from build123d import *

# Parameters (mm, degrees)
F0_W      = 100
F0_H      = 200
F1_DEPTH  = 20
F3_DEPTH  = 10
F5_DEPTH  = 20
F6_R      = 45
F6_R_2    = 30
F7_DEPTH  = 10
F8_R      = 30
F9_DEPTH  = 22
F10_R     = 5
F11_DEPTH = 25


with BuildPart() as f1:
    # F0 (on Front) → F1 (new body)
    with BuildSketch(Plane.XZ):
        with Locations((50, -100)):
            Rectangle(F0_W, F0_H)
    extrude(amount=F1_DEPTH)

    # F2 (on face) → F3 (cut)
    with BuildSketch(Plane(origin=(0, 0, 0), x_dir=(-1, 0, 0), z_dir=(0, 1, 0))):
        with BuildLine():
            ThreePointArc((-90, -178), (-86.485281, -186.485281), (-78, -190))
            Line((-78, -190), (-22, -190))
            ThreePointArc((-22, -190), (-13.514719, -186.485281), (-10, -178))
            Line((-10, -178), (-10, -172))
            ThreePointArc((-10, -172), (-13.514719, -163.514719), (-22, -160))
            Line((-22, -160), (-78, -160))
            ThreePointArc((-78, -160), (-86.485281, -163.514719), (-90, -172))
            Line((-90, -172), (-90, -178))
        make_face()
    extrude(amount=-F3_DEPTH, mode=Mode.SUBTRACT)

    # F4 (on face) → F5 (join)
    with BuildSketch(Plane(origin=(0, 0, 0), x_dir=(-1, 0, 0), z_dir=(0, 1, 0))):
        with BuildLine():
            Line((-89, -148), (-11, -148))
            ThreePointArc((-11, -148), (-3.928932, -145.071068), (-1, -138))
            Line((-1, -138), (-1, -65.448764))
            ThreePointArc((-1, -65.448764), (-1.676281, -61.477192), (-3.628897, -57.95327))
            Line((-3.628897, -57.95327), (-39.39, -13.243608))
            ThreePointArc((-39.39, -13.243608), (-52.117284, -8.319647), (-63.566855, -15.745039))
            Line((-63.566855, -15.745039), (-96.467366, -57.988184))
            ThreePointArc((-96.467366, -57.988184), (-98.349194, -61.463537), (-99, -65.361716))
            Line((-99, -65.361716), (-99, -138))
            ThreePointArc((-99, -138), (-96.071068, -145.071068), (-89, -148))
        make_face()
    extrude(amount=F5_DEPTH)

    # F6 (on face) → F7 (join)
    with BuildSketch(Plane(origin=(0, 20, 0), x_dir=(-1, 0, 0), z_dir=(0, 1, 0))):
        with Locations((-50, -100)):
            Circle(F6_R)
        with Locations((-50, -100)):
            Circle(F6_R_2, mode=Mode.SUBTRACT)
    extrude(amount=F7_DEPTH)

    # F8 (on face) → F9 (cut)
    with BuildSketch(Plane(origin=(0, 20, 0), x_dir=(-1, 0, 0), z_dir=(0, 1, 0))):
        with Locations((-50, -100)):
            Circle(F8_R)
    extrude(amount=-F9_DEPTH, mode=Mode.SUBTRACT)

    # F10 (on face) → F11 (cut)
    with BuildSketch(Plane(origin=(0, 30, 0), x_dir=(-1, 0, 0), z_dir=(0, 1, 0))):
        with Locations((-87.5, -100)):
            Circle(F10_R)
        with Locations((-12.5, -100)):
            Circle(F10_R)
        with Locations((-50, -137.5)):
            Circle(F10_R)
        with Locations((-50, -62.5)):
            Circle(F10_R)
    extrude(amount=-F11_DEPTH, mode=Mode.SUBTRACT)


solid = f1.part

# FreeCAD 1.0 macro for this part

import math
import FreeCAD as App
import Part
import Sketcher
Q = App.Units.Quantity

doc = App.newDocument("Part")
params = doc.addObject("Spreadsheet::Sheet", "Params")
for row, (alias, value) in enumerate([
    ("sketch1_width", "100 mm"),
    ("sketch1_height", "200 mm"),
    ("pad1_length", "20 mm"),
    ("sketch2_radius", "12.000001 mm"),
    ("sketch2_width", "56 mm"),
    ("sketch2_height", "6 mm"),
    ("pocket1_length", "10 mm"),
    ("sketch3_radius", "9.999999 mm"),
    ("sketch3_radius2", "15 mm"),
    ("sketch3_width", "78 mm"),
    ("pad2_length", "20 mm"),
    ("sketch4_diameter", "90 mm"),
    ("sketch4_diameter2", "60 mm"),
    ("pad3_length", "10 mm"),
    ("sketch5_diameter", "60 mm"),
    ("pocket2_length", "22 mm"),
    ("sketch6_diameter", "10 mm"),
    ("pocket3_length", "25 mm"),
], start=1):
    params.set(f"A{row}", alias)
    params.set(f"B{row}", "=" + value)
    params.setAlias(f"B{row}", alias)

body = doc.addObject("PartDesign::Body", "Body")

sketch1 = doc.addObject("Sketcher::SketchObject", "Sketch")
body.addObject(sketch1)
sketch1.AttachmentSupport = (doc.XZ_Plane, [""])
sketch1.MapMode = "FlatFace"
sketch1.addGeometry([
    Part.LineSegment(App.Vector(0, 0, 0), App.Vector(0, -200, 0)),
    Part.LineSegment(App.Vector(0, -200, 0), App.Vector(100, -200, 0)),
    Part.LineSegment(App.Vector(100, -200, 0), App.Vector(100, 0, 0)),
    Part.LineSegment(App.Vector(100, 0, 0), App.Vector(0, 0, 0)),
], False)
sketch1.addConstraint([
    Sketcher.Constraint("Coincident", 0, 2, 1, 1),
    Sketcher.Constraint("Coincident", 1, 2, 2, 1),
    Sketcher.Constraint("Coincident", 2, 2, 3, 1),
    Sketcher.Constraint("Coincident", 3, 2, 0, 1),
    Sketcher.Constraint("Vertical", 0),
    Sketcher.Constraint("Horizontal", 1),
    Sketcher.Constraint("Vertical", 2),
    Sketcher.Constraint("Horizontal", 3),
    Sketcher.Constraint("Coincident", 3, 2, -1, 1),
    Sketcher.Constraint("DistanceX", 1, 1, 1, 2, Q("100 mm")),
    Sketcher.Constraint("DistanceY", 0, 2, 0, 1, Q("200 mm")),
])
sketch1.setExpression("Constraints[9]", "Params.sketch1_width")
sketch1.setExpression("Constraints[10]", "Params.sketch1_height")
pad1 = doc.addObject("PartDesign::Pad", "Pad")
body.addObject(pad1)
pad1.Profile = sketch1
pad1.setExpression("Length", "Params.pad1_length")

sketch2 = doc.addObject("Sketcher::SketchObject", "Sketch001")
body.addObject(sketch2)
sketch2.AttachmentSupport = (doc.XZ_Plane, [""])
sketch2.MapMode = "FlatFace"
sketch2.addGeometry([
    Part.ArcOfCircle(Part.Circle(App.Vector(77.999999, -177.999999, 0), App.Vector(0, 0, 1), 12.000001), math.radians(-89.999994), math.radians(-0.000006)),
    Part.LineSegment(App.Vector(78, -190, 0), App.Vector(22, -190, 0)),
    Part.ArcOfCircle(Part.Circle(App.Vector(22.000001, -177.999999, 0), App.Vector(0, 0, 1), 12.000001), math.radians(-179.999994), math.radians(-90.000006)),
    Part.LineSegment(App.Vector(10, -178, 0), App.Vector(10, -172, 0)),
    Part.ArcOfCircle(Part.Circle(App.Vector(22.000001, -172.000001, 0), App.Vector(0, 0, 1), 12.000001), math.radians(90.000006), math.radians(179.999994)),
    Part.LineSegment(App.Vector(22, -160, 0), App.Vector(78, -160, 0)),
    Part.ArcOfCircle(Part.Circle(App.Vector(77.999999, -172.000001, 0), App.Vector(0, 0, 1), 12.000001), math.radians(0.000006), math.radians(89.999994)),
    Part.LineSegment(App.Vector(90, -172, 0), App.Vector(90, -178, 0)),
], False)
sketch2.addConstraint([
    Sketcher.Constraint("Tangent", 0, 1, 1, 1),
    Sketcher.Constraint("Tangent", 1, 2, 2, 2),
    Sketcher.Constraint("Tangent", 2, 1, 3, 1),
    Sketcher.Constraint("Tangent", 3, 2, 4, 2),
    Sketcher.Constraint("Tangent", 4, 1, 5, 1),
    Sketcher.Constraint("Tangent", 5, 2, 6, 2),
    Sketcher.Constraint("Tangent", 6, 1, 7, 1),
    Sketcher.Constraint("Tangent", 7, 2, 0, 2),
    Sketcher.Constraint("Horizontal", 1),
    Sketcher.Constraint("Vertical", 3),
    Sketcher.Constraint("Horizontal", 5),
    Sketcher.Constraint("Vertical", 7),
    Sketcher.Constraint("Equal", 0, 2),
    Sketcher.Constraint("Equal", 2, 4),
    Sketcher.Constraint("Equal", 4, 6),
    Sketcher.Constraint("Radius", 0, Q("12.000001 mm")),
    Sketcher.Constraint("DistanceX", 1, 2, 1, 1, Q("56 mm")),
    Sketcher.Constraint("DistanceY", 3, 1, 3, 2, Q("6 mm")),
    Sketcher.Constraint("DistanceX", -1, 1, 0, 3, Q("77.999999 mm")),
    Sketcher.Constraint("DistanceY", 0, 3, -1, 1, Q("177.999999 mm")),
])
sketch2.setExpression("Constraints[15]", "Params.sketch2_radius")
sketch2.setExpression("Constraints[16]", "Params.sketch2_width")
sketch2.setExpression("Constraints[17]", "Params.sketch2_height")
pocket1 = doc.addObject("PartDesign::Pocket", "Pocket")
body.addObject(pocket1)
pocket1.Profile = sketch2
pocket1.setExpression("Length", "Params.pocket1_length")
pocket1.Reversed = True

sketch3 = doc.addObject("Sketcher::SketchObject", "Sketch002")
body.addObject(sketch3)
sketch3.AttachmentSupport = (doc.XZ_Plane, [""])
sketch3.MapMode = "FlatFace"
sketch3.addGeometry([
    Part.LineSegment(App.Vector(89, -148, 0), App.Vector(11, -148, 0)),
    Part.ArcOfCircle(Part.Circle(App.Vector(10.999999, -138.000001, 0), App.Vector(0, 0, 1), 9.999999), math.radians(179.999996), math.radians(270.000004)),
    Part.LineSegment(App.Vector(1, -138, 0), App.Vector(1, -65.448764, 0)),
    Part.ArcOfCircle(Part.Circle(App.Vector(13.000003, -65.448765, 0), App.Vector(0, 0, 1), 12.000003), math.radians(141.345374), math.radians(179.999995)),
    Part.LineSegment(App.Vector(3.628897, -57.95327, 0), App.Vector(39.39, -13.243608, 0)),
    Part.ArcOfCircle(Part.Circle(App.Vector(50.573566, -23.24, 0), App.Vector(0, 0, 1), 15), math.radians(29.977778), math.radians(138.208172)),
    Part.LineSegment(App.Vector(63.566855, -15.745039, 0), App.Vector(96.467366, -57.988184, 0)),
    Part.ArcOfCircle(Part.Circle(App.Vector(87.000006, -65.361715, 0), App.Vector(0, 0, 1), 11.999994), math.radians(-0.000007), math.radians(37.912778)),
    Part.LineSegment(App.Vector(99, -65.361716, 0), App.Vector(99, -138, 0)),
    Part.ArcOfCircle(Part.Circle(App.Vector(89.000001, -138.000001, 0), App.Vector(0, 0, 1), 9.999999), math.radians(-90.000004), math.radians(0.000004)),
], False)
sketch3.addConstraint([
    Sketcher.Constraint("Tangent", 0, 2, 1, 2),
    Sketcher.Constraint("Tangent", 1, 1, 2, 1),
    Sketcher.Constraint("Tangent", 2, 2, 3, 2),
    Sketcher.Constraint("Tangent", 3, 1, 4, 1),
    Sketcher.Constraint("Coincident", 4, 2, 5, 2),
    Sketcher.Constraint("Coincident", 5, 1, 6, 1),
    Sketcher.Constraint("Tangent", 6, 2, 7, 2),
    Sketcher.Constraint("Tangent", 7, 1, 8, 1),
    Sketcher.Constraint("Tangent", 8, 2, 9, 2),
    Sketcher.Constraint("Tangent", 9, 1, 0, 1),
    Sketcher.Constraint("Horizontal", 0),
    Sketcher.Constraint("Vertical", 2),
    Sketcher.Constraint("Vertical", 8),
    Sketcher.Constraint("Equal", 1, 9),
    Sketcher.Constraint("Radius", 1, Q("9.999999 mm")),
    Sketcher.Constraint("Radius", 5, Q("15 mm")),
    Sketcher.Constraint("DistanceX", 0, 2, 0, 1, Q("78 mm")),
    Sketcher.Constraint("DistanceX", -1, 1, 1, 3, Q("10.999999 mm")),
    Sketcher.Constraint("DistanceY", 1, 3, -1, 1, Q("138.000001 mm")),
    Sketcher.Constraint("DistanceY", 5, 3, -1, 1, Q("23.24 mm")),
    Sketcher.Constraint("DistanceX", -1, 1, 4, 2, Q("39.39 mm")),
    Sketcher.Constraint("Radius", 3, Q("12.000003 mm")),
    Sketcher.Constraint("Radius", 7, Q("11.999994 mm")),
    Sketcher.Constraint("DistanceX", 5, 3, 6, 2, Q("45.8938 mm")),
    Sketcher.Constraint("Distance", 6, Q("53.543692 mm")),
    Sketcher.Constraint("DistanceY", 2, 1, 2, 2, Q("72.551236 mm")),
    Sketcher.Constraint("DistanceY", 8, 2, 8, 1, Q("72.638284 mm")),
])
sketch3.setExpression("Constraints[14]", "Params.sketch3_radius")
sketch3.setExpression("Constraints[15]", "Params.sketch3_radius2")
sketch3.setExpression("Constraints[16]", "Params.sketch3_width")
pad2 = doc.addObject("PartDesign::Pad", "Pad001")
body.addObject(pad2)
pad2.Profile = sketch3
pad2.setExpression("Length", "Params.pad2_length")
pad2.Reversed = True

sketch4 = doc.addObject("Sketcher::SketchObject", "Sketch003")
body.addObject(sketch4)
sketch4.AttachmentSupport = (doc.XZ_Plane, [""])
sketch4.MapMode = "FlatFace"
sketch4.AttachmentOffset = App.Placement(App.Vector(0, 0, -20), App.Rotation())
sketch4.addGeometry([
    Part.Circle(App.Vector(50, -100, 0), App.Vector(0, 0, 1), 45),
    Part.Circle(App.Vector(50, -100, 0), App.Vector(0, 0, 1), 30),
], False)
sketch4.addConstraint([
    Sketcher.Constraint("Coincident", 1, 3, 0, 3),
    Sketcher.Constraint("Diameter", 0, Q("90 mm")),
    Sketcher.Constraint("Diameter", 1, Q("60 mm")),
    Sketcher.Constraint("DistanceX", -1, 1, 0, 3, Q("50 mm")),
    Sketcher.Constraint("DistanceY", 0, 3, -1, 1, Q("100 mm")),
])
sketch4.setExpression("Constraints[1]", "Params.sketch4_diameter")
sketch4.setExpression("Constraints[2]", "Params.sketch4_diameter2")
pad3 = doc.addObject("PartDesign::Pad", "Pad002")
body.addObject(pad3)
pad3.Profile = sketch4
pad3.setExpression("Length", "Params.pad3_length")
pad3.Reversed = True

sketch5 = doc.addObject("Sketcher::SketchObject", "Sketch004")
body.addObject(sketch5)
sketch5.AttachmentSupport = (doc.XZ_Plane, [""])
sketch5.MapMode = "FlatFace"
sketch5.AttachmentOffset = App.Placement(App.Vector(0, 0, -20), App.Rotation())
sketch5.addGeometry(Part.Circle(App.Vector(50, -100, 0), App.Vector(0, 0, 1), 30), False)
sketch5.addConstraint([
    Sketcher.Constraint("Diameter", 0, Q("60 mm")),
    Sketcher.Constraint("DistanceX", -1, 1, 0, 3, Q("50 mm")),
    Sketcher.Constraint("DistanceY", 0, 3, -1, 1, Q("100 mm")),
])
sketch5.setExpression("Constraints[0]", "Params.sketch5_diameter")
pocket2 = doc.addObject("PartDesign::Pocket", "Pocket001")
body.addObject(pocket2)
pocket2.Profile = sketch5
pocket2.setExpression("Length", "Params.pocket2_length")
pocket2.Reversed = True

sketch6 = doc.addObject("Sketcher::SketchObject", "Sketch005")
body.addObject(sketch6)
sketch6.AttachmentSupport = (doc.XZ_Plane, [""])
sketch6.MapMode = "FlatFace"
sketch6.AttachmentOffset = App.Placement(App.Vector(0, 0, -30), App.Rotation())
sketch6.addGeometry([
    Part.Circle(App.Vector(87.5, -100, 0), App.Vector(0, 0, 1), 5),
    Part.Circle(App.Vector(12.5, -100, 0), App.Vector(0, 0, 1), 5),
    Part.Circle(App.Vector(50, -137.5, 0), App.Vector(0, 0, 1), 5),
    Part.Circle(App.Vector(50, -62.5, 0), App.Vector(0, 0, 1), 5),
], False)
sketch6.addConstraint([
    Sketcher.Constraint("Equal", 0, 1),
    Sketcher.Constraint("Equal", 1, 2),
    Sketcher.Constraint("Equal", 2, 3),
    Sketcher.Constraint("Horizontal", 0, 3, 1, 3),
    Sketcher.Constraint("Vertical", 2, 3, 3, 3),
    Sketcher.Constraint("Diameter", 0, Q("10 mm")),
    Sketcher.Constraint("DistanceY", 0, 3, -1, 1, Q("100 mm")),
    Sketcher.Constraint("DistanceX", -1, 1, 2, 3, Q("50 mm")),
    Sketcher.Constraint("DistanceX", 1, 3, 0, 3, Q("75 mm")),
    Sketcher.Constraint("DistanceY", 2, 3, 3, 3, Q("75 mm")),
    Sketcher.Constraint("DistanceX", -1, 1, 0, 3, Q("87.5 mm")),
    Sketcher.Constraint("DistanceY", 2, 3, -1, 1, Q("137.5 mm")),
])
sketch6.setExpression("Constraints[5]", "Params.sketch6_diameter")
pocket3 = doc.addObject("PartDesign::Pocket", "Pocket002")
body.addObject(pocket3)
pocket3.Profile = sketch6
pocket3.setExpression("Length", "Params.pocket3_length")
pocket3.Reversed = True

doc.recompute()
